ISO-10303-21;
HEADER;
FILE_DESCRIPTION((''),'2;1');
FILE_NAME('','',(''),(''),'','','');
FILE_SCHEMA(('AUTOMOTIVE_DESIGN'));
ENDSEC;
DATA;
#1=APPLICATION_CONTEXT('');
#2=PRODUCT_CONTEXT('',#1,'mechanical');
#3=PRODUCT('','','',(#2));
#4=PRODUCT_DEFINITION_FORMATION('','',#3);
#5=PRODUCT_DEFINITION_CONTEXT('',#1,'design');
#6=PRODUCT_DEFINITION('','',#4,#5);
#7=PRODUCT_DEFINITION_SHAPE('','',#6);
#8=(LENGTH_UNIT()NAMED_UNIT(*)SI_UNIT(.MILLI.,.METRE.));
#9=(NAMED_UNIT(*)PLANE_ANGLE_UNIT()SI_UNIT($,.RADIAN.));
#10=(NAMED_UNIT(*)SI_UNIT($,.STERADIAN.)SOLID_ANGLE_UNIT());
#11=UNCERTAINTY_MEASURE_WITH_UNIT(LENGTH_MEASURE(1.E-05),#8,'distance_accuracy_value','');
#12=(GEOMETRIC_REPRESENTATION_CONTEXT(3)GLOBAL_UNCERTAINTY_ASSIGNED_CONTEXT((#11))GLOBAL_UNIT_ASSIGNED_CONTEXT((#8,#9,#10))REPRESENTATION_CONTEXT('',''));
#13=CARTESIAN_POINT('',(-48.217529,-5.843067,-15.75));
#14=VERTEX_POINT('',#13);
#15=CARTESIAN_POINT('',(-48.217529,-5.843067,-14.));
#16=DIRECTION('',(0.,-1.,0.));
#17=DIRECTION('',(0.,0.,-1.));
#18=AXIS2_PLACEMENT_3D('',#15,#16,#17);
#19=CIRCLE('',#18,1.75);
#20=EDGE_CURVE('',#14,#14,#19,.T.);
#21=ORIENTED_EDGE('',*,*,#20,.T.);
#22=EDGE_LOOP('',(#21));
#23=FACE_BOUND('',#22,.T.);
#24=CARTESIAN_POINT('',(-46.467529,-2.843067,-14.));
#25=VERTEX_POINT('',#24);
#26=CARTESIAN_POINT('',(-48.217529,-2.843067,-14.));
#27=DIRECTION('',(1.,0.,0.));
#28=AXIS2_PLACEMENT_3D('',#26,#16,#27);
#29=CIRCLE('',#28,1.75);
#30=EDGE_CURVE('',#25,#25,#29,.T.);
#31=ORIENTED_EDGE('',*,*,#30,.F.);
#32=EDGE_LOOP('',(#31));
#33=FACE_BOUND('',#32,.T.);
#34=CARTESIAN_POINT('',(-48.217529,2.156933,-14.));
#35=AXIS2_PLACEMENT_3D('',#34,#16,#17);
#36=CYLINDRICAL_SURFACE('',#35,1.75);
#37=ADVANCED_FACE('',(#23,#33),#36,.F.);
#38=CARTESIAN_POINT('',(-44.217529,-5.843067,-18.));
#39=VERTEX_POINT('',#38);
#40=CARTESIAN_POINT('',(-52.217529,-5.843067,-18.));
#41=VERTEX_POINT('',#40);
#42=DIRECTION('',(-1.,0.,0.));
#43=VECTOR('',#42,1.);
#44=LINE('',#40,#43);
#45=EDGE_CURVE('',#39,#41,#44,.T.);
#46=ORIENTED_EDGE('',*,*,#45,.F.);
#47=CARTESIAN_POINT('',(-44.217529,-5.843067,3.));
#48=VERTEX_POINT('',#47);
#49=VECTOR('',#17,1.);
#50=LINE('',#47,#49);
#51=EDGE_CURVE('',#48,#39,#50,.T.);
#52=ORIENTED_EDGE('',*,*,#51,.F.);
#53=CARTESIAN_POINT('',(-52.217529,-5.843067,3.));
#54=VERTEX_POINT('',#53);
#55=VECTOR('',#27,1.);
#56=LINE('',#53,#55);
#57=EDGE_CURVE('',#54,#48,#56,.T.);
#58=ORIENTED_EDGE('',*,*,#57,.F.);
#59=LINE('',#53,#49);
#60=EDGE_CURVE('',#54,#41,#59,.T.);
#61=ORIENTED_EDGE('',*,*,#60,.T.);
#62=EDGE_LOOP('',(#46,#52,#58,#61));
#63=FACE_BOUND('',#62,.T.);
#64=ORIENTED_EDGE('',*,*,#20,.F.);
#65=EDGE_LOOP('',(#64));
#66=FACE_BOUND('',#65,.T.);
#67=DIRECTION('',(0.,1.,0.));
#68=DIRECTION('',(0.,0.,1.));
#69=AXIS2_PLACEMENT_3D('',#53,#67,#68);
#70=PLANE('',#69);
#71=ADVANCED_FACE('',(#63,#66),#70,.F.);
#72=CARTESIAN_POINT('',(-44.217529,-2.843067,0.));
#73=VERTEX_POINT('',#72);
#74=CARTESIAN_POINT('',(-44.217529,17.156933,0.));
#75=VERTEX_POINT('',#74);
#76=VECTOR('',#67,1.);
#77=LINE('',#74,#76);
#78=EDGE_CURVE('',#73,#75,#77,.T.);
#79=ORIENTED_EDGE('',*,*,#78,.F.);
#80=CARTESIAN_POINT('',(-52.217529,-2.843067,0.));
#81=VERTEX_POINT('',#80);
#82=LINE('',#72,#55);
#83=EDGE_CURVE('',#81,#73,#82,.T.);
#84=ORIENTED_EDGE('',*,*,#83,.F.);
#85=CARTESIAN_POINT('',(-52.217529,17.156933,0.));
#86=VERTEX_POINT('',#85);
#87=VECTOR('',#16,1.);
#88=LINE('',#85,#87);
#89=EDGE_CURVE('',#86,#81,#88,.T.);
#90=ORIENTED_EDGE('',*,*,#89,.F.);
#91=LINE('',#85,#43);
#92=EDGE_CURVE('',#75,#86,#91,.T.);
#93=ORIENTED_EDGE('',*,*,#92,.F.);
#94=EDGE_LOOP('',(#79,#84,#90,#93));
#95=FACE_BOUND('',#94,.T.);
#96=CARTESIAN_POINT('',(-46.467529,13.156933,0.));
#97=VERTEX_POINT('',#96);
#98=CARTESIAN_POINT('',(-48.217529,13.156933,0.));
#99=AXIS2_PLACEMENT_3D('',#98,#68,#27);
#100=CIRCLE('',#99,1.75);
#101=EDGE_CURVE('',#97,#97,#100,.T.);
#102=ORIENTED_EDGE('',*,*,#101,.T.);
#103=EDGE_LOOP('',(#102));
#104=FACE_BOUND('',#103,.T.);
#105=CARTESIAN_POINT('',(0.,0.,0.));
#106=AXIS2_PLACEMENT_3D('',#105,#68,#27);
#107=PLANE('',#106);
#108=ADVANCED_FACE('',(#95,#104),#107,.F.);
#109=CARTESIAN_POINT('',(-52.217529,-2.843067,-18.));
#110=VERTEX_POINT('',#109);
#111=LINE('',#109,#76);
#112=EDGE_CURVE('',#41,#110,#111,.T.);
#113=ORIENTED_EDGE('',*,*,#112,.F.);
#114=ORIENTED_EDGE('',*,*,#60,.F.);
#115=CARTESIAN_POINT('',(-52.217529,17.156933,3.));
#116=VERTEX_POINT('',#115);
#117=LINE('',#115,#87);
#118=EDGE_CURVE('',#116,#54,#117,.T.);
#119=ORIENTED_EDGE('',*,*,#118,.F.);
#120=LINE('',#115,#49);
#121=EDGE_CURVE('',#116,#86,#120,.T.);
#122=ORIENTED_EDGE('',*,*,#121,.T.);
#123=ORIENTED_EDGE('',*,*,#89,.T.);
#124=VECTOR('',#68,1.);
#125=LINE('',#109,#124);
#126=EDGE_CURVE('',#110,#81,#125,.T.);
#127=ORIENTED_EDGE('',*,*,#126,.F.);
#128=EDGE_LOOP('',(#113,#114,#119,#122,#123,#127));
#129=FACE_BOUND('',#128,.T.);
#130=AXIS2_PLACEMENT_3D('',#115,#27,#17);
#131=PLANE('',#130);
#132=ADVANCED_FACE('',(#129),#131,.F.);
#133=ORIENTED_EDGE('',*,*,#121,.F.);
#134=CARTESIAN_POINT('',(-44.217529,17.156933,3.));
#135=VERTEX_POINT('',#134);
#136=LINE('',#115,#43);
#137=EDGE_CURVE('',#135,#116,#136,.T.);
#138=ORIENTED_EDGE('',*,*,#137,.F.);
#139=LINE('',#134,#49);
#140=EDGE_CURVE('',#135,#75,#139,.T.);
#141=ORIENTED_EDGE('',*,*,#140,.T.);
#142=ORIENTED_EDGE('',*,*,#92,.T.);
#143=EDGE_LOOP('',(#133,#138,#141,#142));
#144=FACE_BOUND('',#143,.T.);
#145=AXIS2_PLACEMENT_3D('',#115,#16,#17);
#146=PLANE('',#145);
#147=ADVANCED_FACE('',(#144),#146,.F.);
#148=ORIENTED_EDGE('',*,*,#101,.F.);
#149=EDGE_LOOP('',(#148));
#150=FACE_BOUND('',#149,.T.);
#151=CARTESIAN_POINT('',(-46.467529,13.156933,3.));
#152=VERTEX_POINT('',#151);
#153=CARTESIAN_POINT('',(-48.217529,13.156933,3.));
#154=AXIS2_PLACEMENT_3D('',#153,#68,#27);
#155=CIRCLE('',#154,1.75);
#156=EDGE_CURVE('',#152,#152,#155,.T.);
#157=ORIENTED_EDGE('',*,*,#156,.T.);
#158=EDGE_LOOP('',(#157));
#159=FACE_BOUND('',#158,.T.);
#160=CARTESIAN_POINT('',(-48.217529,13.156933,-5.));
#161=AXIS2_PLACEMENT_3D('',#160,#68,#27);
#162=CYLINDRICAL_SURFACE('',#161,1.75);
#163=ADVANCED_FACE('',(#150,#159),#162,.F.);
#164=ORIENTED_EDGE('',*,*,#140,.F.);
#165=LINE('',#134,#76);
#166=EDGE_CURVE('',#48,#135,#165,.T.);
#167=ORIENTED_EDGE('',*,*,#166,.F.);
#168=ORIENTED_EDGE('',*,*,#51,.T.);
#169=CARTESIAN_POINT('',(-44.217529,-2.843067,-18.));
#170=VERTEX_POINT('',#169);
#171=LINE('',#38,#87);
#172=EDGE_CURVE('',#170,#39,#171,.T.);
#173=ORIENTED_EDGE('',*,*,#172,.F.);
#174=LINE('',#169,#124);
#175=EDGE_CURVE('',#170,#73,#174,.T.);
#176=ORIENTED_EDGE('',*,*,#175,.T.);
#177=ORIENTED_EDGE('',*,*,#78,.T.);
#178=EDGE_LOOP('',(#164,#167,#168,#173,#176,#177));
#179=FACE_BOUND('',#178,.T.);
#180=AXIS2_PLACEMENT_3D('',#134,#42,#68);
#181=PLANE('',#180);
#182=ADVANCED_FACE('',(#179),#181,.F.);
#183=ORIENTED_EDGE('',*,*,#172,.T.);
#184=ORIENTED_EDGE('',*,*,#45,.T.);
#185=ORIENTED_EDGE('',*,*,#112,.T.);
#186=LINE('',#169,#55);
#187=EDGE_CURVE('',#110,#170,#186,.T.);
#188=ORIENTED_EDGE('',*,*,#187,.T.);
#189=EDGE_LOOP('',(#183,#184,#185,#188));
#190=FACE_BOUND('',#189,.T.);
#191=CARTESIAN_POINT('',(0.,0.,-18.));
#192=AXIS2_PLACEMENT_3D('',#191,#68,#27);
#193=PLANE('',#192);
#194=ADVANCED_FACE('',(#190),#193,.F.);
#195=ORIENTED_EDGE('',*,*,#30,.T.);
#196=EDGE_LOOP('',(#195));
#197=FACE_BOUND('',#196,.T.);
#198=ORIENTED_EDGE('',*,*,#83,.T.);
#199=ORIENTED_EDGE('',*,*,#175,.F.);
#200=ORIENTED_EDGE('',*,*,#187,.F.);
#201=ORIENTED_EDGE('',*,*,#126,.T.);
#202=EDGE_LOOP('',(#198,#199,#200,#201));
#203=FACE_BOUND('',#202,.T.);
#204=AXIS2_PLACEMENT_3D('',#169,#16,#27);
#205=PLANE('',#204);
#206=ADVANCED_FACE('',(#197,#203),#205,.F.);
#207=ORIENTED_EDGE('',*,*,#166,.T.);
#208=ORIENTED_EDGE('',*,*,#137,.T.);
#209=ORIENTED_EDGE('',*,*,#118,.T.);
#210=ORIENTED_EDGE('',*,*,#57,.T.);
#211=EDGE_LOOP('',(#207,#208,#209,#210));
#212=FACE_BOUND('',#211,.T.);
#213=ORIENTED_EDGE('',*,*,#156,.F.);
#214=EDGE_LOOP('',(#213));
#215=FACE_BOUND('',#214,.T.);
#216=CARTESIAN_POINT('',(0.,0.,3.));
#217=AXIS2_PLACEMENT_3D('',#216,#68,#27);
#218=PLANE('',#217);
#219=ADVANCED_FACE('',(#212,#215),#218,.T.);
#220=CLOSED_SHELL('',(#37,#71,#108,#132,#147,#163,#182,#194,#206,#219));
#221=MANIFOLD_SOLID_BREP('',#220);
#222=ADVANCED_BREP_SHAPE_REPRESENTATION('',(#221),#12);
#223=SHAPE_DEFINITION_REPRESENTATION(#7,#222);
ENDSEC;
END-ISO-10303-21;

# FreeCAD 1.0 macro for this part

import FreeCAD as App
import Part
import Sketcher
Q = App.Units.Quantity


def add_polygon(sketch, points):
    """Adds a closed chain of lines whose ends are joined by coincident constraints."""
    first, n = sketch.GeometryCount, len(points)
    for a, b in zip(points, points[1:] + points[:1]):
        sketch.addGeometry(Part.LineSegment(App.Vector(*a, 0), App.Vector(*b, 0)), False)
    for i in range(n):
        sketch.addConstraint(Sketcher.Constraint("Coincident", first + i, 2, first + (i + 1) % n, 1))

doc = App.newDocument("Part")
params = doc.addObject("Spreadsheet::Sheet", "Params")
for row, (alias, value) in enumerate([
    ("sketch1_width", "8 mm"),
    ("sketch1_height", "23 mm"),
    ("pad1_length", "3 mm"),
    ("sketch2_width", "8 mm"),
    ("sketch2_height", "3 mm"),
    ("pad2_length", "18 mm"),
    ("sketch3_diameter", "3.5 mm"),
    ("pocket1_length", "8 mm"),
    ("sketch4_diameter", "3.5 mm"),
    ("pocket2_length", "8 mm"),
], start=1):
    params.set(f"A{row}", alias)
    params.set(f"B{row}", "=" + value)
    params.setAlias(f"B{row}", alias)

body = doc.addObject("PartDesign::Body", "Body")

sketch1 = body.newObject("Sketcher::SketchObject", "Sketch")
sketch1.AttachmentSupport = (doc.getObject("XY_Plane"), [""])
sketch1.MapMode = "FlatFace"
add_polygon(sketch1, [(-52.217529, 17.156933), (-52.217529, -5.843067), (-44.217529, -5.843067), (-44.217529, 17.156933)])
sketch1.addConstraint([
    Sketcher.Constraint("Vertical", 0),
    Sketcher.Constraint("Horizontal", 1),
    Sketcher.Constraint("Vertical", 2),
    Sketcher.Constraint("Horizontal", 3),
    Sketcher.Constraint("DistanceX", 1, 1, 1, 2, Q("8 mm")),
    Sketcher.Constraint("DistanceY", 0, 2, 0, 1, Q("23 mm")),
    Sketcher.Constraint("DistanceX", 0, 2, -1, 1, Q("52.217529 mm")),
    Sketcher.Constraint("DistanceY", 0, 2, -1, 1, Q("5.843067 mm")),
])
sketch1.setExpression("Constraints[8]", "Params.sketch1_width")
sketch1.setExpression("Constraints[9]", "Params.sketch1_height")
pad1 = body.newObject("PartDesign::Pad", "Pad")
pad1.Profile = sketch1
pad1.setExpression("Length", "Params.pad1_length")

sketch2 = body.newObject("Sketcher::SketchObject", "Sketch001")
sketch2.AttachmentSupport = (doc.getObject("XY_Plane"), [""])
sketch2.MapMode = "FlatFace"
add_polygon(sketch2, [(-44.217529, -2.843067), (-44.217529, -5.843067), (-52.217529, -5.843067), (-52.217529, -2.843067)])
sketch2.addConstraint([
    Sketcher.Constraint("Vertical", 0),
    Sketcher.Constraint("Horizontal", 1),
    Sketcher.Constraint("Vertical", 2),
    Sketcher.Constraint("Horizontal", 3),
    Sketcher.Constraint("DistanceX", 1, 2, 1, 1, Q("8 mm")),
    Sketcher.Constraint("DistanceY", 0, 2, 0, 1, Q("3 mm")),
    Sketcher.Constraint("DistanceX", 0, 2, -1, 1, Q("44.217529 mm")),
    Sketcher.Constraint("DistanceY", 0, 2, -1, 1, Q("5.843067 mm")),
])
sketch2.setExpression("Constraints[8]", "Params.sketch2_width")
sketch2.setExpression("Constraints[9]", "Params.sketch2_height")
pad2 = body.newObject("PartDesign::Pad", "Pad001")
pad2.Profile = sketch2
pad2.setExpression("Length", "Params.pad2_length")
pad2.Reversed = True

sketch3 = body.newObject("Sketcher::SketchObject", "Sketch002")
sketch3.AttachmentSupport = (doc.getObject("XZ_Plane"), [""])
sketch3.MapMode = "FlatFace"
sketch3.AttachmentOffset = App.Placement(App.Vector(0, 0, 5.843067), App.Rotation())
sketch3.addGeometry(Part.Circle(App.Vector(-48.217529, -14, 0), App.Vector(0, 0, 1), 1.75), False)
sketch3.addConstraint([
    Sketcher.Constraint("Diameter", 0, Q("3.5 mm")),
    Sketcher.Constraint("DistanceY", 0, 3, -1, 1, Q("14 mm")),
    Sketcher.Constraint("DistanceX", 0, 3, -1, 1, Q("48.217529 mm")),
])
sketch3.setExpression("Constraints[0]", "Params.sketch3_diameter")
pocket1 = body.newObject("PartDesign::Pocket", "Pocket")
pocket1.Profile = sketch3
pocket1.setExpression("Length", "Params.pocket1_length")

sketch4 = body.newObject("Sketcher::SketchObject", "Sketch003")
sketch4.AttachmentSupport = (doc.getObject("XY_Plane"), [""])
sketch4.MapMode = "FlatFace"
sketch4.AttachmentOffset = App.Placement(App.Vector(0, 0, 3), App.Rotation())
sketch4.addGeometry(Part.Circle(App.Vector(-48.217529, 13.156933, 0), App.Vector(0, 0, 1), 1.75), False)
sketch4.addConstraint([
    Sketcher.Constraint("Diameter", 0, Q("3.5 mm")),
    Sketcher.Constraint("DistanceX", 0, 3, -1, 1, Q("48.217529 mm")),
    Sketcher.Constraint("DistanceY", -1, 1, 0, 3, Q("13.156933 mm")),
])
sketch4.setExpression("Constraints[0]", "Params.sketch4_diameter")
pocket2 = body.newObject("PartDesign::Pocket", "Pocket001")
pocket2.Profile = sketch4
pocket2.setExpression("Length", "Params.pocket2_length")

doc.recompute()
